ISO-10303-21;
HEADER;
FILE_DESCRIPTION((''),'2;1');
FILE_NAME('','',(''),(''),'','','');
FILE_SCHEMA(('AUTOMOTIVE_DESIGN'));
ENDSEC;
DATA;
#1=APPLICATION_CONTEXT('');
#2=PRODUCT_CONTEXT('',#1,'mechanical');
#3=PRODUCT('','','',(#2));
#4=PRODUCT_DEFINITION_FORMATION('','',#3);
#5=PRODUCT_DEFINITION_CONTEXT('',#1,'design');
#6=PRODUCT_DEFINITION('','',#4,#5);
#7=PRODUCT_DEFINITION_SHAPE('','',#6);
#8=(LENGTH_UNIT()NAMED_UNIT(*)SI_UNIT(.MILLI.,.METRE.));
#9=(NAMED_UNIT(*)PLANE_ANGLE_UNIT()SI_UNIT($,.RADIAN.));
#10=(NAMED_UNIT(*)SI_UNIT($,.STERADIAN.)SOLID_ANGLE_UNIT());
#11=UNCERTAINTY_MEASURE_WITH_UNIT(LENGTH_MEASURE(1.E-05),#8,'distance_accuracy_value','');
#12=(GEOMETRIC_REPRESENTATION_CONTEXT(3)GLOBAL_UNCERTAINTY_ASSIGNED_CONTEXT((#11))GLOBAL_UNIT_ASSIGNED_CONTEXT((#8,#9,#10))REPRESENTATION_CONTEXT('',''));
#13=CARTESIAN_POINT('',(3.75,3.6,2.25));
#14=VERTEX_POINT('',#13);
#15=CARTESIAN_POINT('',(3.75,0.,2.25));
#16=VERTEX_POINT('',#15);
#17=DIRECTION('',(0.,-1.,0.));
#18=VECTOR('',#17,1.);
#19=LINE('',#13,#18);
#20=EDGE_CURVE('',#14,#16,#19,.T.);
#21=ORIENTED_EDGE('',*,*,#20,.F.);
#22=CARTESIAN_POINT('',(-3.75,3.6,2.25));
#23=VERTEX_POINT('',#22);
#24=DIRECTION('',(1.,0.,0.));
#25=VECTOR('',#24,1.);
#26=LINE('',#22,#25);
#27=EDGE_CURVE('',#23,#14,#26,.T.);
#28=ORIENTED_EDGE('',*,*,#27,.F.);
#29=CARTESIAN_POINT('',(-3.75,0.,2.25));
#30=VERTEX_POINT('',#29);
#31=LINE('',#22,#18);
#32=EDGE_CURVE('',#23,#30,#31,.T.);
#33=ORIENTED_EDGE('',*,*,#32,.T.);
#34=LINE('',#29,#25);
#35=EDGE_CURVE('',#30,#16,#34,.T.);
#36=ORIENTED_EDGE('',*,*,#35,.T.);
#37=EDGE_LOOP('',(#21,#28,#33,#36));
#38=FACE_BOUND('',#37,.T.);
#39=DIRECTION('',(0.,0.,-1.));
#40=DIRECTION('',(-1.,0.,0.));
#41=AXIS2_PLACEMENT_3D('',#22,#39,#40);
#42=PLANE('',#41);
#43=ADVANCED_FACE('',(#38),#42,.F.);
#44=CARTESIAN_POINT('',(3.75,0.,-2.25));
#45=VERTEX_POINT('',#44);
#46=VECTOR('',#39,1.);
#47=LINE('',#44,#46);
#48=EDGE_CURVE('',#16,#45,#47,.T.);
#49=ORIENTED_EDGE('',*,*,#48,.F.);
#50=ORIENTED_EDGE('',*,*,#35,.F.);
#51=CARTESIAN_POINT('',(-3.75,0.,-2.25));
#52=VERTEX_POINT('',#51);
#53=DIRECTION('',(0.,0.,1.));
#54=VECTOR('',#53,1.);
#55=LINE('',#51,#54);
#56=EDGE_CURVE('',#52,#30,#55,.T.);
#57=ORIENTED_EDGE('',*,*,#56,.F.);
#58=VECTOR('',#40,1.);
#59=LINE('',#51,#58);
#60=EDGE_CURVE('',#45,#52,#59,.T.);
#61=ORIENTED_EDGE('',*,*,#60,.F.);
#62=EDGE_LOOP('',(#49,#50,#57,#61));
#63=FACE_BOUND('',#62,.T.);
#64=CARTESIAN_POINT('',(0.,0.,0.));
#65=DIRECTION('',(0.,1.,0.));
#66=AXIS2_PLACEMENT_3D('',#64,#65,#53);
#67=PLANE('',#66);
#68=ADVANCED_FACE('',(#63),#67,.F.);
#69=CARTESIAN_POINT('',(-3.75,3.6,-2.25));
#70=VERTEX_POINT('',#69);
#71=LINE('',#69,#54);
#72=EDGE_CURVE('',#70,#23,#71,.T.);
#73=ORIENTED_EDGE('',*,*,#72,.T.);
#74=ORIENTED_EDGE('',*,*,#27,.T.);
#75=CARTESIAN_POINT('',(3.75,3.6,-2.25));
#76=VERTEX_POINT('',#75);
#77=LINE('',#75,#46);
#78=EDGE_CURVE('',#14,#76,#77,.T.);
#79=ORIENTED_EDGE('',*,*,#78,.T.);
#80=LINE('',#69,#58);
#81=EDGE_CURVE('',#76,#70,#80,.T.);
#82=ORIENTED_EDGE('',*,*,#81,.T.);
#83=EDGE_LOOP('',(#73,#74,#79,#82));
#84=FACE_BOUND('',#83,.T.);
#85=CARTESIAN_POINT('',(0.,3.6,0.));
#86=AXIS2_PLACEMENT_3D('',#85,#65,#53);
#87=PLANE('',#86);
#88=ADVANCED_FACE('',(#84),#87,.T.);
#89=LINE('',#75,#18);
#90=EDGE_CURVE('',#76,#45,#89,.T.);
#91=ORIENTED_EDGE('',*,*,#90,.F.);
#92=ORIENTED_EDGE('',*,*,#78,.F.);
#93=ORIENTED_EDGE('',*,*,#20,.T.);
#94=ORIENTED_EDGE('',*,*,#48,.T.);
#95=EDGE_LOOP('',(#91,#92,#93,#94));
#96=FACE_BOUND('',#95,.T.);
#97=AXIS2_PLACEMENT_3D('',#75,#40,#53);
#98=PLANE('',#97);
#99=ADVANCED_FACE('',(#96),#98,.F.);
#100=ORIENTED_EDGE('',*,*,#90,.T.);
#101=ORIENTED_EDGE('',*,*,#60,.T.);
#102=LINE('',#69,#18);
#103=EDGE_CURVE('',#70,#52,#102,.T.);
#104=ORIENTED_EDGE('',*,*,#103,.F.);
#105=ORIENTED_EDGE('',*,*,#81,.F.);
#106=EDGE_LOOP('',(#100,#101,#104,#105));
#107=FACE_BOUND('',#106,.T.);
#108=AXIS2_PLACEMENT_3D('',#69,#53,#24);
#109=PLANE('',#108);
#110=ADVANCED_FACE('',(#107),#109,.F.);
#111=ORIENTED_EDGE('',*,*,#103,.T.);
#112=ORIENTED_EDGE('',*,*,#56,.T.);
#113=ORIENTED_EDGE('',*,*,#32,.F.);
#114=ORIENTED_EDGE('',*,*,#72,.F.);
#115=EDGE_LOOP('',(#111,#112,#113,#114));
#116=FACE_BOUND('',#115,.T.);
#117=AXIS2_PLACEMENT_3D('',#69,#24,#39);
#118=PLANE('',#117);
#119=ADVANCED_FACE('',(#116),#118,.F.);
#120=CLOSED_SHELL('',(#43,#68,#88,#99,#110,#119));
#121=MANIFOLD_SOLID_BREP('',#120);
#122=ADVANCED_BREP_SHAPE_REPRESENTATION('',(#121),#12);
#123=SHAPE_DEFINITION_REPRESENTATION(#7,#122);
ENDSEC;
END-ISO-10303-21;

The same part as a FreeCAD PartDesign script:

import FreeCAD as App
import Part
import Sketcher
from FreeCAD import Vector

doc = App.newDocument("Part")
body = doc.addObject("PartDesign::Body", "Body")

# Sketch on XZ plane
sketch1 = doc.addObject("Sketcher::SketchObject", "Sketch")
body.addObject(sketch1)
sketch1.AttachmentSupport = (doc.XZ_Plane, [""])
sketch1.MapMode = "FlatFace"
sketch1.addGeometry(Part.LineSegment(Vector(-3.8, -2.2, 0), Vector(-3.8, 2.2, 0)), False)
sketch1.addGeometry(Part.LineSegment(Vector(-3.8, 2.2, 0), Vector(3.8, 2.2, 0)), False)
sketch1.addGeometry(Part.LineSegment(Vector(3.8, 2.2, 0), Vector(3.8, -2.2, 0)), False)
sketch1.addGeometry(Part.LineSegment(Vector(3.8, -2.2, 0), Vector(-3.8, -2.2, 0)), False)
sketch1.addConstraint(Sketcher.Constraint("Coincident", 0, 2, 1, 1))
sketch1.addConstraint(Sketcher.Constraint("Coincident", 1, 2, 2, 1))
sketch1.addConstraint(Sketcher.Constraint("Coincident", 2, 2, 3, 1))
sketch1.addConstraint(Sketcher.Constraint("Coincident", 3, 2, 0, 1))
sketch1.addConstraint(Sketcher.Constraint("Vertical", 0))
sketch1.addConstraint(Sketcher.Constraint("Horizontal", 1))
sketch1.addConstraint(Sketcher.Constraint("Vertical", 2))
sketch1.addConstraint(Sketcher.Constraint("Horizontal", 3))
sketch1.addConstraint(Sketcher.Constraint("Symmetric", 0, 2, 2, 2, -1, 1))
sketch1.addConstraint(Sketcher.Constraint("DistanceX", 1, 1, 1, 2, 7.5))
sketch1.addConstraint(Sketcher.Constraint("DistanceY", 0, 1, 0, 2, 4.5))
pad1 = doc.addObject("PartDesign::Pad", "Pad")
body.addObject(pad1)
pad1.Profile = sketch1
pad1.Length = 3.6
pad1.Reversed = True

doc.recompute()
